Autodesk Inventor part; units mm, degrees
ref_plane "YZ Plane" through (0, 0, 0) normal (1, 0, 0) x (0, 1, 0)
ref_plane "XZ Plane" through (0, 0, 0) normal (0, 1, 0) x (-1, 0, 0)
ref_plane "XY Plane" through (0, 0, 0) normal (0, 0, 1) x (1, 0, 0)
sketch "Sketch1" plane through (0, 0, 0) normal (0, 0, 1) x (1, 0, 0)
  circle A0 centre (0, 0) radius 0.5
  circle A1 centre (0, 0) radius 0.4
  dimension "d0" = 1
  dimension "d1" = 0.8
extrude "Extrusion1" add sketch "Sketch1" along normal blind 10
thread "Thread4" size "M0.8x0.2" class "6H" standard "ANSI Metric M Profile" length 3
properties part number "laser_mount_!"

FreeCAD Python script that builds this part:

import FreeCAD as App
import Part
import Sketcher
from FreeCAD import Vector
Q = App.Units.Quantity

doc = App.newDocument("Part")
body = doc.addObject("PartDesign::Body", "Body")

# Sketch on XY plane
sketch1 = body.newObject("Sketcher::SketchObject", "Sketch")
sketch1.AttachmentSupport = (doc.getObject("XY_Plane"), [""])
sketch1.MapMode = "FlatFace"
sketch1.addGeometry(Part.Circle(Vector(0, 0, 0), Vector(0, 0, 1), 0.5), False)
sketch1.addGeometry(Part.Circle(Vector(0, 0, 0), Vector(0, 0, 1), 0.4), False)
sketch1.addConstraint(Sketcher.Constraint("Coincident", 0, 3, -1, 1))
sketch1.addConstraint(Sketcher.Constraint("Coincident", 1, 3, -1, 1))
sketch1.addConstraint(Sketcher.Constraint("Diameter", 0, Q("1 mm")))
sketch1.addConstraint(Sketcher.Constraint("Diameter", 1, Q("0.8 mm")))
pad1 = body.newObject("PartDesign::Pad", "Pad")
pad1.Profile = sketch1
pad1.Length = 10

doc.recompute()
